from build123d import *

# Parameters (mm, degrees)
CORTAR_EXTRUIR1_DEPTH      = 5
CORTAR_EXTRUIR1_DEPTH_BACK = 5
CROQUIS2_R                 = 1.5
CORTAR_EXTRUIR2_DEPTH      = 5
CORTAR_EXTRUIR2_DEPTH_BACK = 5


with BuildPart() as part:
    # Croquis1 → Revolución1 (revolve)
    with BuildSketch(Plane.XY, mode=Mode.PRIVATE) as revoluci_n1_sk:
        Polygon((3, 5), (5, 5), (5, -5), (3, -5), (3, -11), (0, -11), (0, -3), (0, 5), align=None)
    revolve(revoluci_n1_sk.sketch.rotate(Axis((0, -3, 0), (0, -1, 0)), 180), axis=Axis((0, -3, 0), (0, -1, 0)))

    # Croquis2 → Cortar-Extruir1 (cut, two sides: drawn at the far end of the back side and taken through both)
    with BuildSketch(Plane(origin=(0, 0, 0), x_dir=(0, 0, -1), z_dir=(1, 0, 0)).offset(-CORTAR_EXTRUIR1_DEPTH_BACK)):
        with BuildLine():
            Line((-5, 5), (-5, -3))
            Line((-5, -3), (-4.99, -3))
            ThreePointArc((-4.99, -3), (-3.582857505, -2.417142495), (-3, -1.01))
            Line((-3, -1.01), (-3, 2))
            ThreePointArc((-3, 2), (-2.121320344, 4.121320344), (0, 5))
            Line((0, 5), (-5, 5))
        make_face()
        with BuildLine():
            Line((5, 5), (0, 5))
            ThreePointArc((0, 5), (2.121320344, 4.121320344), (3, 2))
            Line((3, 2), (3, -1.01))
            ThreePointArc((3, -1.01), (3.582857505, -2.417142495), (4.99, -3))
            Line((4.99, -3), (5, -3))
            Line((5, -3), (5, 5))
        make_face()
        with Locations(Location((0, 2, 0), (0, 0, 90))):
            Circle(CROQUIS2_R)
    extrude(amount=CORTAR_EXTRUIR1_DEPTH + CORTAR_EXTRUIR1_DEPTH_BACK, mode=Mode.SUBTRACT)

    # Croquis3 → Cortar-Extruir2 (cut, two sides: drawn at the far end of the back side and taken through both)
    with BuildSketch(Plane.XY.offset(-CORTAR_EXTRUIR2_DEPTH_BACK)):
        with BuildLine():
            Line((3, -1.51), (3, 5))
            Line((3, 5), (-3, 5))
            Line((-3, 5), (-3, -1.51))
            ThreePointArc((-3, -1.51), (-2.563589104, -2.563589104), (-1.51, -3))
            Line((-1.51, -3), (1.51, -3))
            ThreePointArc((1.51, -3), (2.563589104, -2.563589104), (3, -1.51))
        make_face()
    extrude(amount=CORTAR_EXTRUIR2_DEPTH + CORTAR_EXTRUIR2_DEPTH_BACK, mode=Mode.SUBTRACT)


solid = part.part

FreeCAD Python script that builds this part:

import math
import FreeCAD as App
import Part
import Sketcher
Q = App.Units.Quantity


def add_polygon(sketch, points):
    """Adds a closed chain of lines whose ends are joined by coincident constraints."""
    first, n = sketch.GeometryCount, len(points)
    for a, b in zip(points, points[1:] + points[:1]):
        sketch.addGeometry(Part.LineSegment(App.Vector(*a, 0), App.Vector(*b, 0)), False)
    for i in range(n):
        sketch.addConstraint(Sketcher.Constraint("Coincident", first + i, 2, first + (i + 1) % n, 1))

doc = App.newDocument("Part")
body = doc.addObject("PartDesign::Body", "Body")

# Sketch on XY plane
sketch1 = doc.addObject("Sketcher::SketchObject", "Sketch")
body.addObject(sketch1)
sketch1.AttachmentSupport = (doc.XY_Plane, [""])
sketch1.MapMode = "FlatFace"
add_polygon(sketch1, [(5, 5), (0, 5), (0, -11), (3, -11), (3, -5), (5, -5)])  # lines 0-5
sketch1.addConstraint([
    Sketcher.Constraint("Horizontal", 0),
    Sketcher.Constraint("Vertical", 1),
    Sketcher.Constraint("Horizontal", 2),
    Sketcher.Constraint("Vertical", 3),
    Sketcher.Constraint("Horizontal", 4),
    Sketcher.Constraint("Vertical", 5),
    Sketcher.Constraint("PointOnObject", 0, 2, -2),
    Sketcher.Constraint("DistanceX", 0, 2, 0, 1, Q("5 mm")),
    Sketcher.Constraint("DistanceX", 2, 1, 2, 2, Q("3 mm")),
    Sketcher.Constraint("DistanceY", 1, 2, 1, 1, Q("16 mm")),
    Sketcher.Constraint("DistanceY", 3, 1, 3, 2, Q("6 mm")),
    Sketcher.Constraint("DistanceY", -1, 1, 0, 2, Q("5 mm")),
])
revolution = doc.addObject("PartDesign::Revolution", "Revolution")
body.addObject(revolution)
revolution.Profile = sketch1
revolution.ReferenceAxis = (sketch1, ["V_Axis"])
revolution.Angle = 360

# Sketch on YZ plane
sketch2 = doc.addObject("Sketcher::SketchObject", "Sketch001")
body.addObject(sketch2)
sketch2.AttachmentSupport = (doc.YZ_Plane, [""])
sketch2.MapMode = "FlatFace"
sketch2.addGeometry([
    Part.LineSegment(App.Vector(5, 5, 0), App.Vector(-3, 5, 0)),  # 0
    Part.LineSegment(App.Vector(-3, 5, 0), App.Vector(-3, 4.99, 0)),  # 1
    Part.ArcOfCircle(Part.Circle(App.Vector(-1.01, 4.99, 0), App.Vector(0, 0, 1), 1.99), math.radians(180), math.radians(270)),  # 2
    Part.LineSegment(App.Vector(-1.01, 3, 0), App.Vector(2, 3, 0)),  # 3
    Part.ArcOfCircle(Part.Circle(App.Vector(2, 0, 0), App.Vector(0, 0, 1), 3), math.radians(0), math.radians(90)),  # 4
    Part.LineSegment(App.Vector(5, 0, 0), App.Vector(5, 5, 0)),  # 5
    Part.LineSegment(App.Vector(5, -5, 0), App.Vector(5, 0, 0)),  # 6
    Part.ArcOfCircle(Part.Circle(App.Vector(2, 0, 0), App.Vector(0, 0, 1), 3), math.radians(-90), math.radians(0)),  # 7
    Part.LineSegment(App.Vector(2, -3, 0), App.Vector(-1.01, -3, 0)),  # 8
    Part.ArcOfCircle(Part.Circle(App.Vector(-1.01, -4.99, 0), App.Vector(0, 0, 1), 1.99), math.radians(90), math.radians(180)),  # 9
    Part.LineSegment(App.Vector(-3, -4.99, 0), App.Vector(-3, -5, 0)),  # 10
    Part.LineSegment(App.Vector(-3, -5, 0), App.Vector(5, -5, 0)),  # 11
    Part.Circle(App.Vector(2, 0, 0), App.Vector(0, 0, 1), 1.5),  # 12
], False)
sketch2.addConstraint([
    Sketcher.Constraint("Coincident", 0, 2, 1, 1),
    Sketcher.Constraint("Tangent", 1, 2, 2, 1),
    Sketcher.Constraint("Tangent", 2, 2, 3, 1),
    Sketcher.Constraint("Tangent", 3, 2, 4, 2),
    Sketcher.Constraint("Tangent", 4, 1, 5, 1),
    Sketcher.Constraint("Coincident", 5, 2, 0, 1),
    Sketcher.Constraint("Tangent", 6, 2, 7, 2),
    Sketcher.Constraint("Tangent", 7, 1, 8, 1),
    Sketcher.Constraint("Tangent", 8, 2, 9, 1),
    Sketcher.Constraint("Tangent", 9, 2, 10, 1),
    Sketcher.Constraint("Coincident", 10, 2, 11, 1),
    Sketcher.Constraint("Coincident", 11, 2, 6, 1),
    Sketcher.Constraint("Horizontal", 0),
    Sketcher.Constraint("Vertical", 1),
    Sketcher.Constraint("Horizontal", 3),
    Sketcher.Constraint("Vertical", 5),
    Sketcher.Constraint("Vertical", 6),
    Sketcher.Constraint("Horizontal", 8),
    Sketcher.Constraint("Vertical", 10),
    Sketcher.Constraint("Horizontal", 11),
    Sketcher.Constraint("Coincident", 7, 3, 4, 3),
    Sketcher.Constraint("Coincident", 12, 3, 4, 3),
    Sketcher.Constraint("Equal", 4, 7),
    Sketcher.Constraint("Equal", 2, 9),
    Sketcher.Constraint("Symmetric", 2, 3, 9, 3, -1),
    Sketcher.Constraint("Equal", 5, 6),
    Sketcher.Constraint("Diameter", 12, Q("3 mm")),
    Sketcher.Constraint("Radius", 4, Q("3 mm")),
    Sketcher.Constraint("DistanceX", 0, 2, 0, 1, Q("8 mm")),
    Sketcher.Constraint("DistanceY", 5, 1, 5, 2, Q("5 mm")),
    Sketcher.Constraint("Radius", 2, Q("1.99 mm")),
    Sketcher.Constraint("DistanceX", -1, 1, 4, 3, Q("2 mm")),
])
pocket1 = doc.addObject("PartDesign::Pocket", "Pocket")
body.addObject(pocket1)
pocket1.Profile = sketch2
pocket1.Type = "ThroughAll"
pocket1.Midplane = True

# Sketch on XY plane
sketch3 = doc.addObject("Sketcher::SketchObject", "Sketch002")
body.addObject(sketch3)
sketch3.AttachmentSupport = (doc.XY_Plane, [""])
sketch3.MapMode = "FlatFace"
sketch3.addGeometry([
    Part.LineSegment(App.Vector(3, -1.51, 0), App.Vector(3, 5, 0)),  # 0
    Part.LineSegment(App.Vector(3, 5, 0), App.Vector(-3, 5, 0)),  # 1
    Part.LineSegment(App.Vector(-3, 5, 0), App.Vector(-3, -1.51, 0)),  # 2
    Part.ArcOfCircle(Part.Circle(App.Vector(-1.51, -1.51, 0), App.Vector(0, 0, 1), 1.49), math.radians(180), math.radians(270)),  # 3
    Part.LineSegment(App.Vector(-1.51, -3, 0), App.Vector(1.51, -3, 0)),  # 4
    Part.ArcOfCircle(Part.Circle(App.Vector(1.51, -1.51, 0), App.Vector(0, 0, 1), 1.49), math.radians(-90), math.radians(0)),  # 5
], False)
sketch3.addConstraint([
    Sketcher.Constraint("Coincident", 0, 2, 1, 1),
    Sketcher.Constraint("Coincident", 1, 2, 2, 1),
    Sketcher.Constraint("Tangent", 2, 2, 3, 1),
    Sketcher.Constraint("Tangent", 3, 2, 4, 1),
    Sketcher.Constraint("Tangent", 4, 2, 5, 1),
    Sketcher.Constraint("Tangent", 5, 2, 0, 1),
    Sketcher.Constraint("Vertical", 0),
    Sketcher.Constraint("Horizontal", 1),
    Sketcher.Constraint("Vertical", 2),
    Sketcher.Constraint("Horizontal", 4),
    Sketcher.Constraint("Equal", 3, 5),
    Sketcher.Constraint("DistanceX", 1, 2, 1, 1, Q("6 mm")),
    Sketcher.Constraint("Radius", 3, Q("1.49 mm")),
    Sketcher.Constraint("DistanceX", -1, 1, 0, 2, Q("3 mm")),
    Sketcher.Constraint("DistanceY", -1, 1, 0, 2, Q("5 mm")),
    Sketcher.Constraint("DistanceY", 3, 2, -1, 1, Q("3 mm")),
])
pocket2 = doc.addObject("PartDesign::Pocket", "Pocket001")
body.addObject(pocket2)
pocket2.Profile = sketch3
pocket2.Type = "ThroughAll"
pocket2.Midplane = True

doc.recompute()
